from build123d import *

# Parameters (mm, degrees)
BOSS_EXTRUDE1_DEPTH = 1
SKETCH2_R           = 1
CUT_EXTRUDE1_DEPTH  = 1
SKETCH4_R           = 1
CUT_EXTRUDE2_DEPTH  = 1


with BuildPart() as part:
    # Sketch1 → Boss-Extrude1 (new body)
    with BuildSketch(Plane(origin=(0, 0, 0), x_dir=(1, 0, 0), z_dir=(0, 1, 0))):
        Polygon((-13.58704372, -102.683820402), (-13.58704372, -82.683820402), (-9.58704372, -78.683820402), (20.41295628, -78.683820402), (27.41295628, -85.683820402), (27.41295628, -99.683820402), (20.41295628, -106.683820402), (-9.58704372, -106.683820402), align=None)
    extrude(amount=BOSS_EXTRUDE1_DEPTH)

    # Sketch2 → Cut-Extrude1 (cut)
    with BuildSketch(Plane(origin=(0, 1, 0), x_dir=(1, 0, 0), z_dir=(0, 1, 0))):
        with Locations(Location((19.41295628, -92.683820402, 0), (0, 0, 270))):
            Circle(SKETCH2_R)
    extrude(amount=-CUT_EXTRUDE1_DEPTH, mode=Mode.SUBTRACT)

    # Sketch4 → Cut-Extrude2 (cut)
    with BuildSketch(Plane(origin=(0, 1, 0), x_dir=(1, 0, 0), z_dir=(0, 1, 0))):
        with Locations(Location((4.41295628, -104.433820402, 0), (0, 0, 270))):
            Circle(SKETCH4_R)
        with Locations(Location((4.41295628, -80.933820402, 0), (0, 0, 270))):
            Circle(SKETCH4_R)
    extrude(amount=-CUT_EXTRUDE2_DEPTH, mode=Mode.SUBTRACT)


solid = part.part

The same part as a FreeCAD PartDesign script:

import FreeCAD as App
import Part
import Sketcher
from FreeCAD import Vector


def add_polygon(sketch, points):
    """Adds a closed chain of lines whose ends are joined by coincident constraints."""
    first, n = sketch.GeometryCount, len(points)
    for a, b in zip(points, points[1:] + points[:1]):
        sketch.addGeometry(Part.LineSegment(App.Vector(*a, 0), App.Vector(*b, 0)), False)
    for i in range(n):
        sketch.addConstraint(Sketcher.Constraint("Coincident", first + i, 2, first + (i + 1) % n, 1))

doc = App.newDocument("Part")
body = doc.addObject("PartDesign::Body", "Body")

# Sketch on XZ plane
sketch1 = body.newObject("Sketcher::SketchObject", "Sketch")
sketch1.AttachmentSupport = (doc.getObject("XZ_Plane"), [""])
sketch1.MapMode = "FlatFace"
add_polygon(sketch1, [(-13.587044, 82.68382), (-13.587044, 102.68382), (-9.587044, 106.68382), (20.412956, 106.68382), (27.412956, 99.68382), (27.412956, 85.68382), (20.412956, 78.68382), (-9.587044, 78.68382)])  # lines 0-7
sketch1.addConstraint(Sketcher.Constraint("Vertical", 0))
sketch1.addConstraint(Sketcher.Constraint("Horizontal", 2))
sketch1.addConstraint(Sketcher.Constraint("Vertical", 4))
sketch1.addConstraint(Sketcher.Constraint("Horizontal", 6))
sketch1.addConstraint(Sketcher.Constraint("Perpendicular", 1, 3))
sketch1.addConstraint(Sketcher.Constraint("Perpendicular", 3, 5))
sketch1.addConstraint(Sketcher.Constraint("Perpendicular", 5, 7))
sketch1.addConstraint(Sketcher.Constraint("Vertical", 2, 2, 5, 2))
sketch1.addConstraint(Sketcher.Constraint("Vertical", 1, 2, 6, 2))
sketch1.addConstraint(Sketcher.Constraint("Equal", 3, 5))
sketch1.addConstraint(Sketcher.Constraint("DistanceX", 2, 1, 2, 2, 30.0))
sketch1.addConstraint(Sketcher.Constraint("DistanceY", 0, 1, 0, 2, 20.0))
sketch1.addConstraint(Sketcher.Constraint("DistanceY", 4, 2, 4, 1, 14.0))
sketch1.addConstraint(Sketcher.Constraint("DistanceX", 0, 2, 1, 2, 4.0))
sketch1.addConstraint(Sketcher.Constraint("DistanceY", -1, 1, 0, 2, 102.68382))
sketch1.addConstraint(Sketcher.Constraint("DistanceX", 0, 2, -1, 1, 13.587044))
pad1 = body.newObject("PartDesign::Pad", "Pad")
pad1.Profile = sketch1
pad1.Length = 1
pad1.Reversed = True

# Sketch on XZ plane
sketch2 = body.newObject("Sketcher::SketchObject", "Sketch001")
sketch2.AttachmentSupport = (doc.getObject("XZ_Plane"), [""])
sketch2.MapMode = "FlatFace"
sketch2.AttachmentOffset = App.Placement(Vector(0, 0, -1), App.Rotation())
sketch2.addGeometry(Part.Circle(Vector(19.412956, 92.68382, 0), Vector(0, 0, 1), 1), False)
sketch2.addConstraint(Sketcher.Constraint("Diameter", 0, 2.0))
sketch2.addConstraint(Sketcher.Constraint("DistanceY", -1, 1, 0, 3, 92.68382))
sketch2.addConstraint(Sketcher.Constraint("DistanceX", -1, 1, 0, 3, 19.412956))
pocket1 = body.newObject("PartDesign::Pocket", "Pocket")
pocket1.Profile = sketch2
pocket1.Length = 1
pocket1.Reversed = True

# Sketch on XZ plane
sketch3 = body.newObject("Sketcher::SketchObject", "Sketch002")
sketch3.AttachmentSupport = (doc.getObject("XZ_Plane"), [""])
sketch3.MapMode = "FlatFace"
sketch3.AttachmentOffset = App.Placement(Vector(0, 0, -1), App.Rotation())
sketch3.addGeometry(Part.Circle(Vector(4.412956, 104.43382, 0), Vector(0, 0, 1), 1), False)
sketch3.addGeometry(Part.Circle(Vector(4.412956, 80.93382, 0), Vector(0, 0, 1), 1), False)
sketch3.addConstraint(Sketcher.Constraint("Equal", 0, 1))
sketch3.addConstraint(Sketcher.Constraint("Vertical", 0, 3, 1, 3))
sketch3.addConstraint(Sketcher.Constraint("Diameter", 0, 2.0))
sketch3.addConstraint(Sketcher.Constraint("DistanceY", 1, 3, 0, 3, 23.5))
sketch3.addConstraint(Sketcher.Constraint("DistanceY", -1, 1, 0, 3, 104.43382))
sketch3.addConstraint(Sketcher.Constraint("DistanceX", -1, 1, 0, 3, 4.412956))
pocket2 = body.newObject("PartDesign::Pocket", "Pocket001")
pocket2.Profile = sketch3
pocket2.Length = 1
pocket2.Reversed = True

doc.recompute()
